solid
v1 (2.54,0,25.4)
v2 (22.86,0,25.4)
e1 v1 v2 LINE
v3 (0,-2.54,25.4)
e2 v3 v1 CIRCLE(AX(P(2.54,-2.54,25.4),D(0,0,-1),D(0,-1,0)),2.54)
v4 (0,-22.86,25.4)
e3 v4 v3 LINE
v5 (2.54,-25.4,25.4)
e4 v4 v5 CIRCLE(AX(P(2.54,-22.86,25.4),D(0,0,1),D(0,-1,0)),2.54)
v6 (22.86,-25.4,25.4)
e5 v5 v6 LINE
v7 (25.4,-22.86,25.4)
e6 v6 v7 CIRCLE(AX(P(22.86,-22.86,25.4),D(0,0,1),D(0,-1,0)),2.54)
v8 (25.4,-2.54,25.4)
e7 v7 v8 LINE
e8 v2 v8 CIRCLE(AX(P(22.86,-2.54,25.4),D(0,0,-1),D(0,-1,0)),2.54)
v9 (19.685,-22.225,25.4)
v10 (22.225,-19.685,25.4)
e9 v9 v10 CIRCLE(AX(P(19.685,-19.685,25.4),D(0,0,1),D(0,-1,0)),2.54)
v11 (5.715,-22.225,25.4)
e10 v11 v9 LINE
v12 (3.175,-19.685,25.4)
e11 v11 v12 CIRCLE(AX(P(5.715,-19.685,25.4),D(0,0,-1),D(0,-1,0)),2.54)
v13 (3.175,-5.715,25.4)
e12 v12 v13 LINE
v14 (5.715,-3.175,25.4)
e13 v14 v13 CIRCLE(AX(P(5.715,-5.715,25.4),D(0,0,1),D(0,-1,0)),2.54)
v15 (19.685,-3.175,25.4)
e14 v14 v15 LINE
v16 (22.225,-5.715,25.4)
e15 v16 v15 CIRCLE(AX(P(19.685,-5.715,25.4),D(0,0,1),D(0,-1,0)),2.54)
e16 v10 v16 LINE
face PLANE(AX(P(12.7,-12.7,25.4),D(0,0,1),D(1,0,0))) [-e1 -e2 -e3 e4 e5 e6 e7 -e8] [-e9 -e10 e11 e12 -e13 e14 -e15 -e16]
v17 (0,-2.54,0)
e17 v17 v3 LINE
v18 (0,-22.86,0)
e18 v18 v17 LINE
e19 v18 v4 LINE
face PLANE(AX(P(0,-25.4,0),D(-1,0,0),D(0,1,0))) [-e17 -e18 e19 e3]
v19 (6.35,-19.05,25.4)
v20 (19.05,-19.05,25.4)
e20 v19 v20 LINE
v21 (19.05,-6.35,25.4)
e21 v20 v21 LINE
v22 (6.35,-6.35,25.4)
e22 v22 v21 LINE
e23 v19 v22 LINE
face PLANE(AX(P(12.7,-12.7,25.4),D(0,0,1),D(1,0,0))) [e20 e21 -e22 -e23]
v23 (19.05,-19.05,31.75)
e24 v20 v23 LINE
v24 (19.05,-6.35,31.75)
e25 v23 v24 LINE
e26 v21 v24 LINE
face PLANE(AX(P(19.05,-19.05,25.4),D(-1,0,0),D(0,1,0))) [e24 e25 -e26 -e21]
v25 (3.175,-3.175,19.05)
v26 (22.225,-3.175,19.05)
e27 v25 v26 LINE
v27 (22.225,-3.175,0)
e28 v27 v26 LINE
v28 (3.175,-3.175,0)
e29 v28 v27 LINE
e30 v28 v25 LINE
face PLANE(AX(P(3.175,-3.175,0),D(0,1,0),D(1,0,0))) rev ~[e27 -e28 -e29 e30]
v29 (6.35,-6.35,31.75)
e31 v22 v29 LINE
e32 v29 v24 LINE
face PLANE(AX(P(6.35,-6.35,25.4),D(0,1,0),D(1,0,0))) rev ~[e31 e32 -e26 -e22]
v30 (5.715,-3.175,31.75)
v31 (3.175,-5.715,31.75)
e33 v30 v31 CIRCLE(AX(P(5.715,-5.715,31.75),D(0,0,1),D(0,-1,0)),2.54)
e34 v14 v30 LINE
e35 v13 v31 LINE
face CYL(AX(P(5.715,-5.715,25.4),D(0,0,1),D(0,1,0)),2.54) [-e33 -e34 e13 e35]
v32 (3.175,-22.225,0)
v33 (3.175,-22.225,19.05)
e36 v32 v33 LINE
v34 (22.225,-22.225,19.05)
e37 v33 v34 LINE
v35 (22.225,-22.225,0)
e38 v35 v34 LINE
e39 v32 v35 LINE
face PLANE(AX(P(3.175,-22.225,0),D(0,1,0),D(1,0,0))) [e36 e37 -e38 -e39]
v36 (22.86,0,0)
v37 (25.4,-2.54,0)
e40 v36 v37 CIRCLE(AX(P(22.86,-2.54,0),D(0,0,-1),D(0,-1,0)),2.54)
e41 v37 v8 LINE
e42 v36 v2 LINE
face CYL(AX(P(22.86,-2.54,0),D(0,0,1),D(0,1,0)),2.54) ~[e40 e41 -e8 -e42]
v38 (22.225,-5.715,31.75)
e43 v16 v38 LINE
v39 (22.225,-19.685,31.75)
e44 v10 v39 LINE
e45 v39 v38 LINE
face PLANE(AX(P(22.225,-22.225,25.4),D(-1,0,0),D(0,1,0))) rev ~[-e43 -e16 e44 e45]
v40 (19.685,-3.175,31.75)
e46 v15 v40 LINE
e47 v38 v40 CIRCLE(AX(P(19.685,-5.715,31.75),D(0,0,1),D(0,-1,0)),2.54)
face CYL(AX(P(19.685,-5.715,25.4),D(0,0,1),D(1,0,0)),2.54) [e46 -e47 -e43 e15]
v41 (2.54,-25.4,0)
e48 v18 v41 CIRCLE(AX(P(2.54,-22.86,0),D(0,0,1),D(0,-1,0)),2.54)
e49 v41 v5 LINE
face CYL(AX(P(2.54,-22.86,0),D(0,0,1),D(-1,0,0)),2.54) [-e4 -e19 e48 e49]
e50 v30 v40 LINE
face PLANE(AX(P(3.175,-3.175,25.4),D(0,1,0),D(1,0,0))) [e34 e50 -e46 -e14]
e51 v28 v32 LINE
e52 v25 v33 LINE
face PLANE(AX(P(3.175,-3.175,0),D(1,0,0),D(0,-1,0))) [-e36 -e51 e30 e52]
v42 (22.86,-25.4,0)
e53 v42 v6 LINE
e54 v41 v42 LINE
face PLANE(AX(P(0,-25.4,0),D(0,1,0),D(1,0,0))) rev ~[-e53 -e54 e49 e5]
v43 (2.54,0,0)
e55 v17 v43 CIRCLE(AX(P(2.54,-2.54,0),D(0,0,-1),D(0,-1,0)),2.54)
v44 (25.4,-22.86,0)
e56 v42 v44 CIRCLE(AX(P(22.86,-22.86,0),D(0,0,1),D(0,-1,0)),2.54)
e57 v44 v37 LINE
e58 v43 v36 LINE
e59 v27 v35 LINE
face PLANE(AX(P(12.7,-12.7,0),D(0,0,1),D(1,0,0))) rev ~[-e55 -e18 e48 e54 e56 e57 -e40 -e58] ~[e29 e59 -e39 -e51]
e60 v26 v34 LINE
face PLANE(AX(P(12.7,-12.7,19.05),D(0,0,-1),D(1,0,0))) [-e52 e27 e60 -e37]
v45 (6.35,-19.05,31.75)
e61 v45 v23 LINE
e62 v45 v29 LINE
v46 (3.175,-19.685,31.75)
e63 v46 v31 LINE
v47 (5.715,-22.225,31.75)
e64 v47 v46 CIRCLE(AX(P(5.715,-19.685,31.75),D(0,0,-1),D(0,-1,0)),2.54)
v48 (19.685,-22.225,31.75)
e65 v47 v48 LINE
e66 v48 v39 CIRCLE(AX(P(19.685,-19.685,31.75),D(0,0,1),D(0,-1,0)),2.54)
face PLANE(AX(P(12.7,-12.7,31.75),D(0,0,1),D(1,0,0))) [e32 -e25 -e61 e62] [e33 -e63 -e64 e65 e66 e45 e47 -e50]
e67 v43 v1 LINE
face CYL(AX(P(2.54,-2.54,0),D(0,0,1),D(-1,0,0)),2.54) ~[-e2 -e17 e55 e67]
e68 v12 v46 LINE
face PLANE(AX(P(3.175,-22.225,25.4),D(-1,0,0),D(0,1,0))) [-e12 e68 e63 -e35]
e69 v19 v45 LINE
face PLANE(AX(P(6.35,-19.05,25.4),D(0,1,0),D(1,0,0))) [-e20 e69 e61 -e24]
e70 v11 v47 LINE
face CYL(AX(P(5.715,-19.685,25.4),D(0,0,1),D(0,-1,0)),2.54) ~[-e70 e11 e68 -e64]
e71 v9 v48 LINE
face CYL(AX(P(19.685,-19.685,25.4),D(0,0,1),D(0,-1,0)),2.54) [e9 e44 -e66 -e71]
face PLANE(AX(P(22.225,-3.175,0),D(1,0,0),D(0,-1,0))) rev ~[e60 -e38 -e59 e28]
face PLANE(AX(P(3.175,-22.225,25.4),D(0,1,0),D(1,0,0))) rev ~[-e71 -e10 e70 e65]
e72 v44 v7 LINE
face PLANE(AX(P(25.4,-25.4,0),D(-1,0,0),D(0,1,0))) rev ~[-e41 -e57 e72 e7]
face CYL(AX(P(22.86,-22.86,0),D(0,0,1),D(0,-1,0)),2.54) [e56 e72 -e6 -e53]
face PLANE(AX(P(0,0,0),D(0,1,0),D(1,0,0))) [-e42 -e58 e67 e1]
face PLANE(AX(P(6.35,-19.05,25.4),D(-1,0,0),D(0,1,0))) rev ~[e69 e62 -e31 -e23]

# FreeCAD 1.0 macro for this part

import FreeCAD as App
import Part
import Sketcher
Q = App.Units.Quantity


def edges_at(feature, points):
    """Names of the edges that pass closest to the given points."""
    edges = feature.Shape.Edges
    near = lambda p: min(range(len(edges)), key=lambda i: edges[i].distToShape(Part.Vertex(*p))[0])
    return sorted({f"Edge{near(p) + 1}" for p in points})


def add_polygon(sketch, points):
    """Adds a closed chain of lines whose ends are joined by coincident constraints."""
    first, n = sketch.GeometryCount, len(points)
    for a, b in zip(points, points[1:] + points[:1]):
        sketch.addGeometry(Part.LineSegment(App.Vector(*a, 0), App.Vector(*b, 0)), False)
    for i in range(n):
        sketch.addConstraint(Sketcher.Constraint("Coincident", first + i, 2, first + (i + 1) % n, 1))

doc = App.newDocument("Part")
params = doc.addObject("Spreadsheet::Sheet", "Params")
for row, (alias, value) in enumerate([
    ("sketch1_width", "1 in"),
    ("pad1_length", "1 in"),
    ("sketch2_width", "0.75 in"),
    ("pocket1_length", "0.75 in"),
    ("sketch3_width", "0.5 in"),
    ("sketch3_width2", "0.75 in"),
    ("pad2_length", "0.25 in"),
    ("fillet_radius", "0.1 in"),
], start=1):
    params.set(f"A{row}", alias)
    params.set(f"B{row}", "=" + value)
    params.setAlias(f"B{row}", alias)

body = doc.addObject("PartDesign::Body", "Body")

# Sketch on XY plane
sketch1 = doc.addObject("Sketcher::SketchObject", "Sketch")
body.addObject(sketch1)
sketch1.AttachmentSupport = (doc.XY_Plane, [""])
sketch1.MapMode = "FlatFace"
add_polygon(sketch1, [(0, 0), (0, -25.4), (25.4, -25.4), (25.4, 0)])  # lines 0-3
sketch1.addConstraint(Sketcher.Constraint("Vertical", 0))
sketch1.addConstraint(Sketcher.Constraint("Horizontal", 1))
sketch1.addConstraint(Sketcher.Constraint("Vertical", 2))
sketch1.addConstraint(Sketcher.Constraint("Horizontal", 3))
sketch1.addConstraint(Sketcher.Constraint("Coincident", 3, 2, -1, 1))
sketch1.addConstraint(Sketcher.Constraint("Equal", 3, 0))
sketch1.addConstraint(Sketcher.Constraint("DistanceX", 1, 1, 1, 2, Q("1 in")))
sketch1.setExpression("Constraints[10]", "Params.sketch1_width")
pad1 = doc.addObject("PartDesign::Pad", "Pad")
body.addObject(pad1)
pad1.Profile = sketch1
pad1.setExpression("Length", "Params.pad1_length")

# Sketch on XY plane
sketch2 = doc.addObject("Sketcher::SketchObject", "Sketch001")
body.addObject(sketch2)
sketch2.AttachmentSupport = (doc.XY_Plane, [""])
sketch2.MapMode = "FlatFace"
add_polygon(sketch2, [(3.175, -22.225), (3.175, -3.175), (22.225, -3.175), (22.225, -22.225)])  # lines 0-3
sketch2.addConstraint(Sketcher.Constraint("Vertical", 0))
sketch2.addConstraint(Sketcher.Constraint("Horizontal", 1))
sketch2.addConstraint(Sketcher.Constraint("Vertical", 2))
sketch2.addConstraint(Sketcher.Constraint("Horizontal", 3))
sketch2.addConstraint(Sketcher.Constraint("Equal", 3, 0))
sketch2.addConstraint(Sketcher.Constraint("DistanceX", 1, 1, 1, 2, Q("0.75 in")))
sketch2.addConstraint(Sketcher.Constraint("DistanceX", -1, 1, 0, 2, Q("0.125 in")))
sketch2.addConstraint(Sketcher.Constraint("DistanceY", 0, 2, -1, 1, Q("0.125 in")))
sketch2.setExpression("Constraints[9]", "Params.sketch2_width")
pocket1 = doc.addObject("PartDesign::Pocket", "Pocket")
body.addObject(pocket1)
pocket1.Profile = sketch2
pocket1.setExpression("Length", "Params.pocket1_length")
pocket1.Reversed = True

# Sketch on XY plane
sketch3 = doc.addObject("Sketcher::SketchObject", "Sketch002")
body.addObject(sketch3)
sketch3.AttachmentSupport = (doc.XY_Plane, [""])
sketch3.MapMode = "FlatFace"
sketch3.AttachmentOffset = App.Placement(App.Vector(0, 0, 1 * 25.4), App.Rotation())
add_polygon(sketch3, [(3.175, -3.175), (3.175, -22.225), (22.225, -22.225), (22.225, -3.175)])  # lines 0-3
add_polygon(sketch3, [(19.05, -19.05), (6.35, -19.05), (6.35, -6.35), (19.05, -6.35)])  # lines 4-7
sketch3.addConstraint(Sketcher.Constraint("Vertical", 0))
sketch3.addConstraint(Sketcher.Constraint("Horizontal", 1))
sketch3.addConstraint(Sketcher.Constraint("Vertical", 2))
sketch3.addConstraint(Sketcher.Constraint("Horizontal", 3))
sketch3.addConstraint(Sketcher.Constraint("Horizontal", 4))
sketch3.addConstraint(Sketcher.Constraint("Vertical", 5))
sketch3.addConstraint(Sketcher.Constraint("Horizontal", 6))
sketch3.addConstraint(Sketcher.Constraint("Vertical", 7))
sketch3.addConstraint(Sketcher.Constraint("Equal", 3, 0))
sketch3.addConstraint(Sketcher.Constraint("Equal", 6, 5))
sketch3.addConstraint(Sketcher.Constraint("DistanceX", 4, 2, 4, 1, Q("0.5 in")))
sketch3.addConstraint(Sketcher.Constraint("DistanceX", 1, 1, 1, 2, Q("0.75 in")))
sketch3.addConstraint(Sketcher.Constraint("DistanceX", -1, 1, 4, 2, Q("0.25 in")))
sketch3.addConstraint(Sketcher.Constraint("DistanceY", 4, 2, -1, 1, Q("0.75 in")))
sketch3.addConstraint(Sketcher.Constraint("DistanceX", -1, 1, 0, 2, Q("0.125 in")))
sketch3.addConstraint(Sketcher.Constraint("DistanceY", 0, 2, -1, 1, Q("0.875 in")))
sketch3.setExpression("Constraints[18]", "Params.sketch3_width")
sketch3.setExpression("Constraints[19]", "Params.sketch3_width2")
pad2 = doc.addObject("PartDesign::Pad", "Pad001")
body.addObject(pad2)
pad2.Profile = sketch3
pad2.setExpression("Length", "Params.pad2_length")
doc.recompute()

fillet = doc.addObject("PartDesign::Fillet", "Fillet")
body.addObject(fillet)
fillet.Base = (pad2, edges_at(pad2, [
    (0, 0, 12.7),
    (0, -25.4, 12.7),
    (25.4, 0, 12.7),
    (3.175, -3.175, 28.575),
    (3.175, -22.225, 28.575),
    (22.225, -3.175, 28.575),
    (22.225, -22.225, 28.575),
    (25.4, -25.4, 12.7),
]))
fillet.setExpression("Radius", "Params.fillet_radius")

doc.recompute()
